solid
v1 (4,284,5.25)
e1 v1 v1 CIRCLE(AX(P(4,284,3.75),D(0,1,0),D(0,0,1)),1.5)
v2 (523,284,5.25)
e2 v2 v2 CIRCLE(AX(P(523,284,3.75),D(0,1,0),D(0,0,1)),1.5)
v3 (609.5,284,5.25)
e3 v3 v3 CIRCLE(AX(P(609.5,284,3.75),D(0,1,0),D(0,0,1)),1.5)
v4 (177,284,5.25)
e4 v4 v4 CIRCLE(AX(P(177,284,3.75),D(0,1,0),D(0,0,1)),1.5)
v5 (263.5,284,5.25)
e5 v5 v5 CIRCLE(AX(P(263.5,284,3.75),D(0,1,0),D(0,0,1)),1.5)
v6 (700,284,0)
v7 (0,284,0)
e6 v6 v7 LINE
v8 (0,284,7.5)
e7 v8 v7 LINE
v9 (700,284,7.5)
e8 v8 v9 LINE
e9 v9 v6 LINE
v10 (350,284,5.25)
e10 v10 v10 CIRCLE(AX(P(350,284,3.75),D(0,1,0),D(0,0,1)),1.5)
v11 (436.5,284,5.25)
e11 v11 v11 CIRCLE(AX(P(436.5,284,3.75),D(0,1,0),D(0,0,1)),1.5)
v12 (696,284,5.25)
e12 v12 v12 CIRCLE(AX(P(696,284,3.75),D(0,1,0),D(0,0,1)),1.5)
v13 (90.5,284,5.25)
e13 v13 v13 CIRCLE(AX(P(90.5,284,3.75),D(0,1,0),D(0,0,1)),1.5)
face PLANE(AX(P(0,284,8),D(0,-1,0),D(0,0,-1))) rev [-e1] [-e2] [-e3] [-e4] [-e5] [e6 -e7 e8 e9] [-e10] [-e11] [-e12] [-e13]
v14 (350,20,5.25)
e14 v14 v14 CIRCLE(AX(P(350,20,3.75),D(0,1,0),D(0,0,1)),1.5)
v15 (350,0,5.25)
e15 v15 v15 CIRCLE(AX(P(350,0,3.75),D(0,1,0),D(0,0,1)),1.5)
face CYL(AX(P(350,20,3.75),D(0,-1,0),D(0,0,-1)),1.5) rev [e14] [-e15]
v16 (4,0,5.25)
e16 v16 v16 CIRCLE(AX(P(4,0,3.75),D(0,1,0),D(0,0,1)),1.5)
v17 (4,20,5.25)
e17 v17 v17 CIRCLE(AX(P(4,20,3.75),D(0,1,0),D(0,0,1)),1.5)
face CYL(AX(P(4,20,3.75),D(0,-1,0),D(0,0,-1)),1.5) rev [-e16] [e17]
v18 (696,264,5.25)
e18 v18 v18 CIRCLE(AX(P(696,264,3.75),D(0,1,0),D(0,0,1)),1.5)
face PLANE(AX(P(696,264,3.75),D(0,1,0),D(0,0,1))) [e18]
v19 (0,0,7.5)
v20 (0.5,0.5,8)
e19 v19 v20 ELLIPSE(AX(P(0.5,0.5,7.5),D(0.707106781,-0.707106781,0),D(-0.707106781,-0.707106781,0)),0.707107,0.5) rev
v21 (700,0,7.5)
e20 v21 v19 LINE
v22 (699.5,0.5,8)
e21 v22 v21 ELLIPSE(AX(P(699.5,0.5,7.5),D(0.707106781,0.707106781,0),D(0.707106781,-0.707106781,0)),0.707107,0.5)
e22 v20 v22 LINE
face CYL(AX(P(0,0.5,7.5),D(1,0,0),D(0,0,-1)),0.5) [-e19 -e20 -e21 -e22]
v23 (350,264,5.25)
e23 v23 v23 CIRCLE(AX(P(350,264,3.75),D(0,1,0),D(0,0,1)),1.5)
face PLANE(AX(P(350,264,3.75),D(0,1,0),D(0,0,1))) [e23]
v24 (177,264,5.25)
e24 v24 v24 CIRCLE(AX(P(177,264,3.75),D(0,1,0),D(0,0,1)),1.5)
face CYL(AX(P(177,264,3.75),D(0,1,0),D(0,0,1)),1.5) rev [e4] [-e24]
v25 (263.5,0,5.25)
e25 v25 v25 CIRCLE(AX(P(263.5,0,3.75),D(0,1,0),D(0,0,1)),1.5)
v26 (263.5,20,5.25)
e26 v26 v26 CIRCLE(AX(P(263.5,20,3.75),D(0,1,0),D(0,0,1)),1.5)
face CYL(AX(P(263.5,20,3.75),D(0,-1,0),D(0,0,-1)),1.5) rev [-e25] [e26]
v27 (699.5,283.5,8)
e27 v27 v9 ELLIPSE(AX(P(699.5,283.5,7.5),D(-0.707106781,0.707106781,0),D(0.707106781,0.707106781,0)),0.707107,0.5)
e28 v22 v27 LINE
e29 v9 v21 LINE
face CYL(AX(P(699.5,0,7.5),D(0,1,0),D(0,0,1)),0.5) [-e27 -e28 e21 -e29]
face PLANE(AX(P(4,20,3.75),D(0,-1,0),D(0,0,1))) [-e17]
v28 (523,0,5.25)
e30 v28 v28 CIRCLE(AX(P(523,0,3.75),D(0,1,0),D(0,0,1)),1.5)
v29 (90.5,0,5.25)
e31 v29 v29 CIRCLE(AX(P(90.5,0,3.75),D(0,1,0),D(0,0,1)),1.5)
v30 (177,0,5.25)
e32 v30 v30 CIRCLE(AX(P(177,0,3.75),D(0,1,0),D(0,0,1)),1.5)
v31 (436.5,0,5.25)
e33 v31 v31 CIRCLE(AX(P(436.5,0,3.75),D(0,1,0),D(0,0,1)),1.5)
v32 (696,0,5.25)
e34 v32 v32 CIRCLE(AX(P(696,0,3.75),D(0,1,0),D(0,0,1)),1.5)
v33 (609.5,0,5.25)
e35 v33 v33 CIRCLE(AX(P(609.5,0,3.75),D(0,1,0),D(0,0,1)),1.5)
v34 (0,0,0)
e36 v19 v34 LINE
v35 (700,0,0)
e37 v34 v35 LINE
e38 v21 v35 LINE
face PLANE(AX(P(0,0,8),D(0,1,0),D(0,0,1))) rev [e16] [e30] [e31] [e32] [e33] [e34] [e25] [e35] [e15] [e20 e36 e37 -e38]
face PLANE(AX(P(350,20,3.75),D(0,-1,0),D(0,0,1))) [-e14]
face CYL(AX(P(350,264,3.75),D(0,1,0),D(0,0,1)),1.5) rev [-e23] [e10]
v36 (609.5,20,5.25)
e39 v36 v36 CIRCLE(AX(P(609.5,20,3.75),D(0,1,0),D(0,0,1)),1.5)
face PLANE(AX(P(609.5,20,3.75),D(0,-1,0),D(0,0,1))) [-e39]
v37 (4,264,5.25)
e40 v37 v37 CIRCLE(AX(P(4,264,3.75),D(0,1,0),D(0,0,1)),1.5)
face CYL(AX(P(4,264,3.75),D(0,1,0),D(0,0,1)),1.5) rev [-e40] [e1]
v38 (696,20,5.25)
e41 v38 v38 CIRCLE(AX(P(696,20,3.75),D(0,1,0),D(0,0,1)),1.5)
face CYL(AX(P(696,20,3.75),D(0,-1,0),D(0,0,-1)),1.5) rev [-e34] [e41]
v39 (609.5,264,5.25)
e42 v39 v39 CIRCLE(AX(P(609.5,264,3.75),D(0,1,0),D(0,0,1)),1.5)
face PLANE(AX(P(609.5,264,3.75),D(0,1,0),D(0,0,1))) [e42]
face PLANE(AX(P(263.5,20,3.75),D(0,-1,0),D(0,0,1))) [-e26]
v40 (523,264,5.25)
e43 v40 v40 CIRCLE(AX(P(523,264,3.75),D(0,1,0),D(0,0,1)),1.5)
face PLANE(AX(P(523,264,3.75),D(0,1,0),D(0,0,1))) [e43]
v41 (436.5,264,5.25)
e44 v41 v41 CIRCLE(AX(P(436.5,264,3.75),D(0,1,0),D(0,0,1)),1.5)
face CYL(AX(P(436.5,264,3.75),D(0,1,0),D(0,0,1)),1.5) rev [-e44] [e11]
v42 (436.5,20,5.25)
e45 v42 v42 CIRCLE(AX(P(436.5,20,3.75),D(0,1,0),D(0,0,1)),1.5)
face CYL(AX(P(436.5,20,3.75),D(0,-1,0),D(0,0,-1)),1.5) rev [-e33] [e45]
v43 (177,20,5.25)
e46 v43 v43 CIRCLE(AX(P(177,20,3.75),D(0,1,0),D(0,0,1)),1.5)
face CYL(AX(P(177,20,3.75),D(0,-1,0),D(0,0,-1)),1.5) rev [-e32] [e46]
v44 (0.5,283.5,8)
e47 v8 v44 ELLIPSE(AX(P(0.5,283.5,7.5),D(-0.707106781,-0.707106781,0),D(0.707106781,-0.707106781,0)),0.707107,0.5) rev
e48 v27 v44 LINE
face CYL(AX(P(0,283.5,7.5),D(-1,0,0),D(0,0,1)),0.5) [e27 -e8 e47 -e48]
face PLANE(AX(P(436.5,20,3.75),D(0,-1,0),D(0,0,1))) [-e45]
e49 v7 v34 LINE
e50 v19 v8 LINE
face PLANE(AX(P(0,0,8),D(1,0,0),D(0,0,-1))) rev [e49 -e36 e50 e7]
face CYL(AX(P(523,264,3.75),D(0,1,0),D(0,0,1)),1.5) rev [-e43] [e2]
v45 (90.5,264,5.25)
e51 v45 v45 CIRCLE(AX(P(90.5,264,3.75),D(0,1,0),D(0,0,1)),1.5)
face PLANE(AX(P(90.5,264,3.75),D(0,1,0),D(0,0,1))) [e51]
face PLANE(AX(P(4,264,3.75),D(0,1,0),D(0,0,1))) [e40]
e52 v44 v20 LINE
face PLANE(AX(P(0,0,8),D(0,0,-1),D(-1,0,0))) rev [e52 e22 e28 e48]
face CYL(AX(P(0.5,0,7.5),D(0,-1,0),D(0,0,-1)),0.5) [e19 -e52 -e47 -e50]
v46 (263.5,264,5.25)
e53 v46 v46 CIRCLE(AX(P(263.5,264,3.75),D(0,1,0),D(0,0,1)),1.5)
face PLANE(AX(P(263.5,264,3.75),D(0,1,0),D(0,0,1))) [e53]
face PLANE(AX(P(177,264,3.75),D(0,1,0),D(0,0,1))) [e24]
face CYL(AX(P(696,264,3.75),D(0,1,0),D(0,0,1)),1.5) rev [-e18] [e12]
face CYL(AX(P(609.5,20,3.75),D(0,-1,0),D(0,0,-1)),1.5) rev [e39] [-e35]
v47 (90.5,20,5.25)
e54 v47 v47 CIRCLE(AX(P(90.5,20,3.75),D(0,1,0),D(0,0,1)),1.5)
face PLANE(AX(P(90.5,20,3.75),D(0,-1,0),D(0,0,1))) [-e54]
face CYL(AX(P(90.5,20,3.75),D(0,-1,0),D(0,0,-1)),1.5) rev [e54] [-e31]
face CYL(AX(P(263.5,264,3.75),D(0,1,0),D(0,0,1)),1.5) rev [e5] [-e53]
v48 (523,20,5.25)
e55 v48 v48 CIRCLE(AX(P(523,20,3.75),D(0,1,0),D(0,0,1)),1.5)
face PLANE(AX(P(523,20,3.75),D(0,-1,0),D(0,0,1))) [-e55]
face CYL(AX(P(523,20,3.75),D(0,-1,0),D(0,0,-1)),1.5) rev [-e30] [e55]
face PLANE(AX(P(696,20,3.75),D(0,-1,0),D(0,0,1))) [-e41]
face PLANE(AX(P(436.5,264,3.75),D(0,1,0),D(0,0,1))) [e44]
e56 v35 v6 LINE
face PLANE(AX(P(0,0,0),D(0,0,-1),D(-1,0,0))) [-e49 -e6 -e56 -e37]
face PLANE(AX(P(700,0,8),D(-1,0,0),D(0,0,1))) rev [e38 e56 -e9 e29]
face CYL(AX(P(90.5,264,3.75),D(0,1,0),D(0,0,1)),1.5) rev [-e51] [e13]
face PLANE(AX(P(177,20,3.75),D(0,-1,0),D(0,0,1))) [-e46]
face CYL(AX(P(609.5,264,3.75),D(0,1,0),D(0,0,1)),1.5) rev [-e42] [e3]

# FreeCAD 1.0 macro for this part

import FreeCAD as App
import Part
import Sketcher
from FreeCAD import Vector
Q = App.Units.Quantity


def edges_at(feature, points):
    """Names of the edges that pass closest to the given points."""
    edges = feature.Shape.Edges
    near = lambda p: min(range(len(edges)), key=lambda i: edges[i].distToShape(Part.Vertex(*p))[0])
    return sorted({f"Edge{near(p) + 1}" for p in points})

doc = App.newDocument("Part")
body = doc.addObject("PartDesign::Body", "Body")

# Sketch on XY plane
sketch1 = body.newObject("Sketcher::SketchObject", "Sketch")
sketch1.AttachmentSupport = (doc.getObject("XY_Plane"), [""])
sketch1.MapMode = "FlatFace"
sketch1.addGeometry(Part.LineSegment(Vector(0, 284, 0), Vector(0, 0, 0)), False)
sketch1.addGeometry(Part.LineSegment(Vector(0, 0, 0), Vector(700, 0, 0)), False)
sketch1.addGeometry(Part.LineSegment(Vector(700, 0, 0), Vector(700, 284, 0)), False)
sketch1.addGeometry(Part.LineSegment(Vector(700, 284, 0), Vector(0, 284, 0)), False)
sketch1.addConstraint(Sketcher.Constraint("Coincident", 0, 2, 1, 1))
sketch1.addConstraint(Sketcher.Constraint("Coincident", 1, 2, 2, 1))
sketch1.addConstraint(Sketcher.Constraint("Coincident", 2, 2, 3, 1))
sketch1.addConstraint(Sketcher.Constraint("Coincident", 3, 2, 0, 1))
sketch1.addConstraint(Sketcher.Constraint("Vertical", 0))
sketch1.addConstraint(Sketcher.Constraint("Horizontal", 1))
sketch1.addConstraint(Sketcher.Constraint("Vertical", 2))
sketch1.addConstraint(Sketcher.Constraint("Horizontal", 3))
sketch1.addConstraint(Sketcher.Constraint("Coincident", 0, 2, -1, 1))
sketch1.addConstraint(Sketcher.Constraint("DistanceX", 1, 1, 1, 2, Q("700 mm")))
sketch1.addConstraint(Sketcher.Constraint("DistanceY", 0, 2, 0, 1, Q("284 mm")))
pad1 = body.newObject("PartDesign::Pad", "Pad")
pad1.Profile = sketch1
pad1.Length = 8
doc.recompute()

fillet = body.newObject("PartDesign::Fillet", "Fillet")
fillet.Base = (pad1, edges_at(pad1, [
    (700, 142, 8),
    (350, 284, 8),
    (0, 142, 8),
    (350, 0, 8),
]))
fillet.Radius = 0.5

# Sketch on XZ plane
sketch2 = body.newObject("Sketcher::SketchObject", "Sketch001")
sketch2.AttachmentSupport = (doc.getObject("XZ_Plane"), [""])
sketch2.MapMode = "FlatFace"
sketch2.AttachmentOffset = App.Placement(Vector(0, 0, -284), App.Rotation())
sketch2.addGeometry(Part.Circle(Vector(4, 3.8, 0), Vector(0, 0, 1), 1.5), False)
sketch2.addConstraint(Sketcher.Constraint("Diameter", 0, Q("3 mm")))
sketch2.addConstraint(Sketcher.Constraint("DistanceX", -1, 1, 0, 3, Q("4 mm")))
sketch2.addConstraint(Sketcher.Constraint("DistanceY", -1, 1, 0, 3, Q("3.75 mm")))
pocket1 = body.newObject("PartDesign::Pocket", "Pocket")
pocket1.Profile = sketch2
pocket1.Length = 20
pocket1.Reversed = True
doc.recompute()

linearpattern = body.newObject("PartDesign::LinearPattern", "LinearPattern")
linearpattern.Originals = [pocket1]
linearpattern.Direction = (doc.getObject("X_Axis"), [""])
linearpattern.Mode = "offset"
linearpattern.Offset = 86.5
linearpattern.Occurrences = 9
body.Tip = linearpattern
doc.recompute()

datumplane = body.newObject("PartDesign::Plane", "DatumPlane")
datumplane.AttachmentSupport = (doc.getObject("XZ_Plane"), [""])
datumplane.MapMode = "FlatFace"
datumplane.AttachmentOffset = App.Placement(Vector(0, 0, -142), App.Rotation())
mirrored = body.newObject("PartDesign::Mirrored", "Mirrored")
mirrored.Originals = [pocket1]
mirrored.MirrorPlane = (datumplane, [""])
body.Tip = mirrored

# Sketch on XZ plane
sketch3 = body.newObject("Sketcher::SketchObject", "Sketch002")
sketch3.AttachmentSupport = (doc.getObject("XZ_Plane"), [""])
sketch3.MapMode = "FlatFace"
sketch3.addGeometry(Part.Circle(Vector(90.5, 3.8, 0), Vector(0, 0, 1), 1.5), False)
sketch3.addConstraint(Sketcher.Constraint("Diameter", 0, Q("3 mm")))
sketch3.addConstraint(Sketcher.Constraint("DistanceX", -1, 1, 0, 3, Q("90.5 mm")))
sketch3.addConstraint(Sketcher.Constraint("DistanceY", -1, 1, 0, 3, Q("3.75 mm")))
pocket2 = body.newObject("PartDesign::Pocket", "Pocket001")
pocket2.Profile = sketch3
pocket2.Length = 20

# Sketch on XZ plane
sketch4 = body.newObject("Sketcher::SketchObject", "Sketch003")
sketch4.AttachmentSupport = (doc.getObject("XZ_Plane"), [""])
sketch4.MapMode = "FlatFace"
sketch4.addGeometry(Part.Circle(Vector(177, 3.8, 0), Vector(0, 0, 1), 1.5), False)
sketch4.addConstraint(Sketcher.Constraint("Diameter", 0, Q("3 mm")))
sketch4.addConstraint(Sketcher.Constraint("DistanceX", -1, 1, 0, 3, Q("177 mm")))
sketch4.addConstraint(Sketcher.Constraint("DistanceY", -1, 1, 0, 3, Q("3.75 mm")))
pocket3 = body.newObject("PartDesign::Pocket", "Pocket002")
pocket3.Profile = sketch4
pocket3.Length = 20

# Sketch on XZ plane
sketch5 = body.newObject("Sketcher::SketchObject", "Sketch004")
sketch5.AttachmentSupport = (doc.getObject("XZ_Plane"), [""])
sketch5.MapMode = "FlatFace"
sketch5.addGeometry(Part.Circle(Vector(263.5, 3.8, 0), Vector(0, 0, 1), 1.5), False)
sketch5.addConstraint(Sketcher.Constraint("Diameter", 0, Q("3 mm")))
sketch5.addConstraint(Sketcher.Constraint("DistanceX", -1, 1, 0, 3, Q("263.5 mm")))
sketch5.addConstraint(Sketcher.Constraint("DistanceY", -1, 1, 0, 3, Q("3.75 mm")))
pocket4 = body.newObject("PartDesign::Pocket", "Pocket003")
pocket4.Profile = sketch5
pocket4.Length = 20

# Sketch on XZ plane
sketch6 = body.newObject("Sketcher::SketchObject", "Sketch005")
sketch6.AttachmentSupport = (doc.getObject("XZ_Plane"), [""])
sketch6.MapMode = "FlatFace"
sketch6.addGeometry(Part.Circle(Vector(350, 3.8, 0), Vector(0, 0, 1), 1.5), False)
sketch6.addConstraint(Sketcher.Constraint("Diameter", 0, Q("3 mm")))
sketch6.addConstraint(Sketcher.Constraint("DistanceX", -1, 1, 0, 3, Q("350 mm")))
sketch6.addConstraint(Sketcher.Constraint("DistanceY", -1, 1, 0, 3, Q("3.75 mm")))
pocket5 = body.newObject("PartDesign::Pocket", "Pocket004")
pocket5.Profile = sketch6
pocket5.Length = 20

# Sketch on XZ plane
sketch7 = body.newObject("Sketcher::SketchObject", "Sketch006")
sketch7.AttachmentSupport = (doc.getObject("XZ_Plane"), [""])
sketch7.MapMode = "FlatFace"
sketch7.addGeometry(Part.Circle(Vector(436.5, 3.8, 0), Vector(0, 0, 1), 1.5), False)
sketch7.addConstraint(Sketcher.Constraint("Diameter", 0, Q("3 mm")))
sketch7.addConstraint(Sketcher.Constraint("DistanceX", -1, 1, 0, 3, Q("436.5 mm")))
sketch7.addConstraint(Sketcher.Constraint("DistanceY", -1, 1, 0, 3, Q("3.75 mm")))
pocket6 = body.newObject("PartDesign::Pocket", "Pocket005")
pocket6.Profile = sketch7
pocket6.Length = 20

# Sketch on XZ plane
sketch8 = body.newObject("Sketcher::SketchObject", "Sketch007")
sketch8.AttachmentSupport = (doc.getObject("XZ_Plane"), [""])
sketch8.MapMode = "FlatFace"
sketch8.addGeometry(Part.Circle(Vector(523, 3.8, 0), Vector(0, 0, 1), 1.5), False)
sketch8.addConstraint(Sketcher.Constraint("Diameter", 0, Q("3 mm")))
sketch8.addConstraint(Sketcher.Constraint("DistanceX", -1, 1, 0, 3, Q("523 mm")))
sketch8.addConstraint(Sketcher.Constraint("DistanceY", -1, 1, 0, 3, Q("3.75 mm")))
pocket7 = body.newObject("PartDesign::Pocket", "Pocket006")
pocket7.Profile = sketch8
pocket7.Length = 20

# Sketch on XZ plane
sketch9 = body.newObject("Sketcher::SketchObject", "Sketch008")
sketch9.AttachmentSupport = (doc.getObject("XZ_Plane"), [""])
sketch9.MapMode = "FlatFace"
sketch9.addGeometry(Part.Circle(Vector(609.5, 3.8, 0), Vector(0, 0, 1), 1.5), False)
sketch9.addConstraint(Sketcher.Constraint("Diameter", 0, Q("3 mm")))
sketch9.addConstraint(Sketcher.Constraint("DistanceX", -1, 1, 0, 3, Q("609.5 mm")))
sketch9.addConstraint(Sketcher.Constraint("DistanceY", -1, 1, 0, 3, Q("3.75 mm")))
pocket8 = body.newObject("PartDesign::Pocket", "Pocket007")
pocket8.Profile = sketch9
pocket8.Length = 20

# Sketch on XZ plane
sketch10 = body.newObject("Sketcher::SketchObject", "Sketch009")
sketch10.AttachmentSupport = (doc.getObject("XZ_Plane"), [""])
sketch10.MapMode = "FlatFace"
sketch10.addGeometry(Part.Circle(Vector(696, 3.8, 0), Vector(0, 0, 1), 1.5), False)
sketch10.addConstraint(Sketcher.Constraint("Diameter", 0, Q("3 mm")))
sketch10.addConstraint(Sketcher.Constraint("DistanceX", -1, 1, 0, 3, Q("696 mm")))
sketch10.addConstraint(Sketcher.Constraint("DistanceY", -1, 1, 0, 3, Q("3.75 mm")))
pocket9 = body.newObject("PartDesign::Pocket", "Pocket008")
pocket9.Profile = sketch10
pocket9.Length = 20

doc.recompute()
